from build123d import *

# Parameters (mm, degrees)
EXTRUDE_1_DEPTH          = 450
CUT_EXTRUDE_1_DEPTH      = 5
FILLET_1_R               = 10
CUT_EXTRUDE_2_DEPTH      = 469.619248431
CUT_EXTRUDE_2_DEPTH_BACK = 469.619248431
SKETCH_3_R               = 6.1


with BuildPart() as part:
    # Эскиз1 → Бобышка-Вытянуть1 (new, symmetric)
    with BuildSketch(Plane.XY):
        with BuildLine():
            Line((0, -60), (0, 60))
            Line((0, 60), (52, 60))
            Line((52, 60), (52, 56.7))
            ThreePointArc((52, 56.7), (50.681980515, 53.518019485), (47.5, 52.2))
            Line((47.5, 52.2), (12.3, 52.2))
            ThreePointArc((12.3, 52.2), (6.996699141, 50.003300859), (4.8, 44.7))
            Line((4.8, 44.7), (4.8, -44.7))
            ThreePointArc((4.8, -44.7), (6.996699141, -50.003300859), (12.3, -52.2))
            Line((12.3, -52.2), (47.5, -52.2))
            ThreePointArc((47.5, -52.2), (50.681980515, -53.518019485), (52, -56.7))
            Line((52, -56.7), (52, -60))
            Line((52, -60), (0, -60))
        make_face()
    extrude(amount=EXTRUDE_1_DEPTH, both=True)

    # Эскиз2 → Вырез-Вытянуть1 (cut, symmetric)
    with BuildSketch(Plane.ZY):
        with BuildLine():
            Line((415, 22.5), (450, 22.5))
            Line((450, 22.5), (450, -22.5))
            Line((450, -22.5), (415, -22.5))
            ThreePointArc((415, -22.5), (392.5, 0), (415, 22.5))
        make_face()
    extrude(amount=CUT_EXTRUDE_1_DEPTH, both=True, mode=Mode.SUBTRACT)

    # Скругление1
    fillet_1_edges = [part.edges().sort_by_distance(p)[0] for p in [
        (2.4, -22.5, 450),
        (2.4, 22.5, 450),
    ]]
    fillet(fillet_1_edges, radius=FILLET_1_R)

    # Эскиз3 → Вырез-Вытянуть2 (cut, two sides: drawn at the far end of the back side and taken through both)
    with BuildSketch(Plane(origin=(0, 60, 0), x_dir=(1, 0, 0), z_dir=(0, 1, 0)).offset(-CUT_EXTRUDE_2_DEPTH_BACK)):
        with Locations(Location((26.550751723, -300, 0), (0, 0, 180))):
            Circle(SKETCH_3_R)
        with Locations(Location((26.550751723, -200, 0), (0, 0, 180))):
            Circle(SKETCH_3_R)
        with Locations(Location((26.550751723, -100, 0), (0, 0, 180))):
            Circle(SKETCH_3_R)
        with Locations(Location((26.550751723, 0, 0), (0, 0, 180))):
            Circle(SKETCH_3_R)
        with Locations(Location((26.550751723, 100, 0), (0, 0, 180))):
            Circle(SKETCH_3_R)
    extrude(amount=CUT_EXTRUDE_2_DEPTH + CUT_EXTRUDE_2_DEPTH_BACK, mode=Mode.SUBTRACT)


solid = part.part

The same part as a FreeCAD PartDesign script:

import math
import FreeCAD as App
import Part
import Sketcher

V = App.Vector


def edges_at(feature, points):
    """Names of the edges that pass closest to the given points."""
    edges = feature.Shape.Edges
    near = lambda p: min(range(len(edges)), key=lambda i: edges[i].distToShape(Part.Vertex(*p))[0])
    return sorted({f"Edge{near(p) + 1}" for p in points})

doc = App.newDocument("Part")
params = doc.addObject("Spreadsheet::Sheet", "Params")
for row, (alias, value) in enumerate([
    ("sketch1_radius", "4.5 mm"),
    ("sketch1_radius2", "7.5 mm"),
    ("sketch1_width", "52 mm"),
    ("sketch1_height", "120 mm"),
    ("sketch1_width2", "35.2 mm"),
    ("pad1_length", "900 mm"),
    ("sketch2_radius", "22.5 mm"),
    ("sketch2_height", "35 mm"),
    ("pocket1_length", "10 mm"),
    ("fillet_radius", "10 mm"),
    ("sketch3_diameter", "12.2 mm"),
], start=1):
    params.set(f"A{row}", alias)
    params.set(f"B{row}", "=" + value)
    params.setAlias(f"B{row}", alias)

body = doc.addObject("PartDesign::Body", "Body")

# Sketch on XY plane
sketch1 = body.newObject("Sketcher::SketchObject", "Sketch")
sketch1.AttachmentSupport = (doc.getObject("XY_Plane"), [""])
sketch1.MapMode = "FlatFace"
sketch1.addGeometry([
    Part.LineSegment(V(0, 60, 0), V(0, -60, 0)),  # 0
    Part.LineSegment(V(0, -60, 0), V(52, -60, 0)),  # 1
    Part.LineSegment(V(52, -60, 0), V(52, -56.7, 0)),  # 2
    Part.ArcOfCircle(Part.Circle(V(47.5, -56.7, 0), V(0, 0, 1), 4.5), math.radians(0), math.radians(90)),  # 3
    Part.LineSegment(V(47.5, -52.2, 0), V(12.3, -52.2, 0)),  # 4
    Part.ArcOfCircle(Part.Circle(V(12.3, -44.7, 0), V(0, 0, 1), 7.5), math.radians(180), math.radians(270)),  # 5
    Part.LineSegment(V(4.8, -44.7, 0), V(4.8, 44.7, 0)),  # 6
    Part.ArcOfCircle(Part.Circle(V(12.3, 44.7, 0), V(0, 0, 1), 7.5), math.radians(90), math.radians(180)),  # 7
    Part.LineSegment(V(12.3, 52.2, 0), V(47.5, 52.2, 0)),  # 8
    Part.ArcOfCircle(Part.Circle(V(47.5, 56.7, 0), V(0, 0, 1), 4.5), math.radians(-90), math.radians(0)),  # 9
    Part.LineSegment(V(52, 56.7, 0), V(52, 60, 0)),  # 10
    Part.LineSegment(V(52, 60, 0), V(0, 60, 0)),  # 11
], False)
sketch1.addConstraint([
    Sketcher.Constraint("Coincident", 0, 2, 1, 1),
    Sketcher.Constraint("Coincident", 1, 2, 2, 1),
    Sketcher.Constraint("Tangent", 2, 2, 3, 1),
    Sketcher.Constraint("Tangent", 3, 2, 4, 1),
    Sketcher.Constraint("Tangent", 4, 2, 5, 2),
    Sketcher.Constraint("Tangent", 5, 1, 6, 1),
    Sketcher.Constraint("Tangent", 6, 2, 7, 2),
    Sketcher.Constraint("Tangent", 7, 1, 8, 1),
    Sketcher.Constraint("Tangent", 8, 2, 9, 1),
    Sketcher.Constraint("Tangent", 9, 2, 10, 1),
    Sketcher.Constraint("Coincident", 10, 2, 11, 1),
    Sketcher.Constraint("Coincident", 11, 2, 0, 1),
    Sketcher.Constraint("Vertical", 0),
    Sketcher.Constraint("Horizontal", 1),
    Sketcher.Constraint("Vertical", 2),
    Sketcher.Constraint("Horizontal", 4),
    Sketcher.Constraint("Vertical", 6),
    Sketcher.Constraint("Horizontal", 8),
    Sketcher.Constraint("Vertical", 10),
    Sketcher.Constraint("Horizontal", 11),
    Sketcher.Constraint("Equal", 5, 7),
    Sketcher.Constraint("Equal", 3, 9),
    Sketcher.Constraint("Symmetric", 0, 2, 11, 2, -1, 1),
    Sketcher.Constraint("Symmetric", 3, 3, 9, 3, -1),
    Sketcher.Constraint("Radius", 3, 4.5),
    Sketcher.Constraint("Radius", 5, 7.5),
    Sketcher.Constraint("DistanceX", 1, 1, 1, 2, 52.0),
    Sketcher.Constraint("DistanceY", 0, 2, 0, 1, 120.0),
    Sketcher.Constraint("DistanceX", 4, 2, 4, 1, 35.2),
    Sketcher.Constraint("DistanceY", 2, 1, 2, 2, 3.3),
])
sketch1.setExpression("Constraints[24]", "Params.sketch1_radius")
sketch1.setExpression("Constraints[25]", "Params.sketch1_radius2")
sketch1.setExpression("Constraints[26]", "Params.sketch1_width")
sketch1.setExpression("Constraints[27]", "Params.sketch1_height")
sketch1.setExpression("Constraints[28]", "Params.sketch1_width2")
pad1 = body.newObject("PartDesign::Pad", "Pad")
pad1.Profile = sketch1
pad1.setExpression("Length", "Params.pad1_length")
pad1.Midplane = True

# Sketch on YZ plane
sketch2 = body.newObject("Sketcher::SketchObject", "Sketch001")
sketch2.AttachmentSupport = (doc.getObject("YZ_Plane"), [""])
sketch2.MapMode = "FlatFace"
sketch2.addGeometry([
    Part.LineSegment(V(22.5, 450, 0), V(22.5, 415, 0)),
    Part.ArcOfCircle(Part.Circle(V(0, 415, 0), V(0, 0, 1), 22.5), math.radians(180), math.radians(360)),
    Part.LineSegment(V(-22.5, 415, 0), V(-22.5, 450, 0)),
    Part.LineSegment(V(-22.5, 450, 0), V(22.5, 450, 0)),
], False)
sketch2.addConstraint([
    Sketcher.Constraint("Tangent", 0, 2, 1, 2),
    Sketcher.Constraint("Tangent", 1, 1, 2, 1),
    Sketcher.Constraint("Coincident", 2, 2, 3, 1),
    Sketcher.Constraint("Coincident", 3, 2, 0, 1),
    Sketcher.Constraint("Vertical", 0),
    Sketcher.Constraint("Vertical", 2),
    Sketcher.Constraint("Horizontal", 3),
    Sketcher.Constraint("PointOnObject", 1, 3, -2),
    Sketcher.Constraint("Radius", 1, 22.5),
    Sketcher.Constraint("DistanceY", 0, 2, 0, 1, 35.0),
    Sketcher.Constraint("DistanceY", -1, 1, 1, 3, 415.0),
])
sketch2.setExpression("Constraints[8]", "Params.sketch2_radius")
sketch2.setExpression("Constraints[9]", "Params.sketch2_height")
pocket1 = body.newObject("PartDesign::Pocket", "Pocket")
pocket1.Profile = sketch2
pocket1.setExpression("Length", "Params.pocket1_length")
pocket1.Midplane = True
doc.recompute()

fillet = body.newObject("PartDesign::Fillet", "Fillet")
fillet.Base = (pocket1, edges_at(pocket1, [(2.4, -22.5, 450), (2.4, 22.5, 450)]))
fillet.setExpression("Radius", "Params.fillet_radius")

# Sketch on XZ plane
sketch3 = body.newObject("Sketcher::SketchObject", "Sketch002")
sketch3.AttachmentSupport = (doc.getObject("XZ_Plane"), [""])
sketch3.MapMode = "FlatFace"
sketch3.AttachmentOffset = App.Placement(V(0, 0, -60), App.Rotation())
sketch3.addGeometry([
    Part.Circle(V(26.550752, 300, 0), V(0, 0, 1), 6.1),  # 0
    Part.Circle(V(26.550752, 200, 0), V(0, 0, 1), 6.1),  # 1
    Part.Circle(V(26.550752, 100, 0), V(0, 0, 1), 6.1),  # 2
    Part.Circle(V(26.550752, 0, 0), V(0, 0, 1), 6.1),  # 3
    Part.Circle(V(26.550752, -100, 0), V(0, 0, 1), 6.1),  # 4
], False)
sketch3.addConstraint([
    Sketcher.Constraint("Equal", 0, 1),
    Sketcher.Constraint("Equal", 1, 2),
    Sketcher.Constraint("Equal", 2, 3),
    Sketcher.Constraint("Equal", 3, 4),
    Sketcher.Constraint("Symmetric", 2, 3, 4, 3, -1),
    Sketcher.Constraint("PointOnObject", 3, 3, -1),
    Sketcher.Constraint("Vertical", 0, 3, 1, 3),
    Sketcher.Constraint("Vertical", 1, 3, 2, 3),
    Sketcher.Constraint("Vertical", 2, 3, 3, 3),
    Sketcher.Constraint("Diameter", 0, 12.2),
    Sketcher.Constraint("DistanceY", -1, 1, 0, 3, 300.0),
    Sketcher.Constraint("DistanceY", -1, 1, 1, 3, 200.0),
    Sketcher.Constraint("DistanceY", -1, 1, 2, 3, 100.0),
    Sketcher.Constraint("DistanceX", -1, 1, 0, 3, 26.550752),
])
sketch3.setExpression("Constraints[9]", "Params.sketch3_diameter")
pocket2 = body.newObject("PartDesign::Pocket", "Pocket001")
pocket2.Profile = sketch3
pocket2.Type = "ThroughAll"
pocket2.Midplane = True

doc.recompute()
